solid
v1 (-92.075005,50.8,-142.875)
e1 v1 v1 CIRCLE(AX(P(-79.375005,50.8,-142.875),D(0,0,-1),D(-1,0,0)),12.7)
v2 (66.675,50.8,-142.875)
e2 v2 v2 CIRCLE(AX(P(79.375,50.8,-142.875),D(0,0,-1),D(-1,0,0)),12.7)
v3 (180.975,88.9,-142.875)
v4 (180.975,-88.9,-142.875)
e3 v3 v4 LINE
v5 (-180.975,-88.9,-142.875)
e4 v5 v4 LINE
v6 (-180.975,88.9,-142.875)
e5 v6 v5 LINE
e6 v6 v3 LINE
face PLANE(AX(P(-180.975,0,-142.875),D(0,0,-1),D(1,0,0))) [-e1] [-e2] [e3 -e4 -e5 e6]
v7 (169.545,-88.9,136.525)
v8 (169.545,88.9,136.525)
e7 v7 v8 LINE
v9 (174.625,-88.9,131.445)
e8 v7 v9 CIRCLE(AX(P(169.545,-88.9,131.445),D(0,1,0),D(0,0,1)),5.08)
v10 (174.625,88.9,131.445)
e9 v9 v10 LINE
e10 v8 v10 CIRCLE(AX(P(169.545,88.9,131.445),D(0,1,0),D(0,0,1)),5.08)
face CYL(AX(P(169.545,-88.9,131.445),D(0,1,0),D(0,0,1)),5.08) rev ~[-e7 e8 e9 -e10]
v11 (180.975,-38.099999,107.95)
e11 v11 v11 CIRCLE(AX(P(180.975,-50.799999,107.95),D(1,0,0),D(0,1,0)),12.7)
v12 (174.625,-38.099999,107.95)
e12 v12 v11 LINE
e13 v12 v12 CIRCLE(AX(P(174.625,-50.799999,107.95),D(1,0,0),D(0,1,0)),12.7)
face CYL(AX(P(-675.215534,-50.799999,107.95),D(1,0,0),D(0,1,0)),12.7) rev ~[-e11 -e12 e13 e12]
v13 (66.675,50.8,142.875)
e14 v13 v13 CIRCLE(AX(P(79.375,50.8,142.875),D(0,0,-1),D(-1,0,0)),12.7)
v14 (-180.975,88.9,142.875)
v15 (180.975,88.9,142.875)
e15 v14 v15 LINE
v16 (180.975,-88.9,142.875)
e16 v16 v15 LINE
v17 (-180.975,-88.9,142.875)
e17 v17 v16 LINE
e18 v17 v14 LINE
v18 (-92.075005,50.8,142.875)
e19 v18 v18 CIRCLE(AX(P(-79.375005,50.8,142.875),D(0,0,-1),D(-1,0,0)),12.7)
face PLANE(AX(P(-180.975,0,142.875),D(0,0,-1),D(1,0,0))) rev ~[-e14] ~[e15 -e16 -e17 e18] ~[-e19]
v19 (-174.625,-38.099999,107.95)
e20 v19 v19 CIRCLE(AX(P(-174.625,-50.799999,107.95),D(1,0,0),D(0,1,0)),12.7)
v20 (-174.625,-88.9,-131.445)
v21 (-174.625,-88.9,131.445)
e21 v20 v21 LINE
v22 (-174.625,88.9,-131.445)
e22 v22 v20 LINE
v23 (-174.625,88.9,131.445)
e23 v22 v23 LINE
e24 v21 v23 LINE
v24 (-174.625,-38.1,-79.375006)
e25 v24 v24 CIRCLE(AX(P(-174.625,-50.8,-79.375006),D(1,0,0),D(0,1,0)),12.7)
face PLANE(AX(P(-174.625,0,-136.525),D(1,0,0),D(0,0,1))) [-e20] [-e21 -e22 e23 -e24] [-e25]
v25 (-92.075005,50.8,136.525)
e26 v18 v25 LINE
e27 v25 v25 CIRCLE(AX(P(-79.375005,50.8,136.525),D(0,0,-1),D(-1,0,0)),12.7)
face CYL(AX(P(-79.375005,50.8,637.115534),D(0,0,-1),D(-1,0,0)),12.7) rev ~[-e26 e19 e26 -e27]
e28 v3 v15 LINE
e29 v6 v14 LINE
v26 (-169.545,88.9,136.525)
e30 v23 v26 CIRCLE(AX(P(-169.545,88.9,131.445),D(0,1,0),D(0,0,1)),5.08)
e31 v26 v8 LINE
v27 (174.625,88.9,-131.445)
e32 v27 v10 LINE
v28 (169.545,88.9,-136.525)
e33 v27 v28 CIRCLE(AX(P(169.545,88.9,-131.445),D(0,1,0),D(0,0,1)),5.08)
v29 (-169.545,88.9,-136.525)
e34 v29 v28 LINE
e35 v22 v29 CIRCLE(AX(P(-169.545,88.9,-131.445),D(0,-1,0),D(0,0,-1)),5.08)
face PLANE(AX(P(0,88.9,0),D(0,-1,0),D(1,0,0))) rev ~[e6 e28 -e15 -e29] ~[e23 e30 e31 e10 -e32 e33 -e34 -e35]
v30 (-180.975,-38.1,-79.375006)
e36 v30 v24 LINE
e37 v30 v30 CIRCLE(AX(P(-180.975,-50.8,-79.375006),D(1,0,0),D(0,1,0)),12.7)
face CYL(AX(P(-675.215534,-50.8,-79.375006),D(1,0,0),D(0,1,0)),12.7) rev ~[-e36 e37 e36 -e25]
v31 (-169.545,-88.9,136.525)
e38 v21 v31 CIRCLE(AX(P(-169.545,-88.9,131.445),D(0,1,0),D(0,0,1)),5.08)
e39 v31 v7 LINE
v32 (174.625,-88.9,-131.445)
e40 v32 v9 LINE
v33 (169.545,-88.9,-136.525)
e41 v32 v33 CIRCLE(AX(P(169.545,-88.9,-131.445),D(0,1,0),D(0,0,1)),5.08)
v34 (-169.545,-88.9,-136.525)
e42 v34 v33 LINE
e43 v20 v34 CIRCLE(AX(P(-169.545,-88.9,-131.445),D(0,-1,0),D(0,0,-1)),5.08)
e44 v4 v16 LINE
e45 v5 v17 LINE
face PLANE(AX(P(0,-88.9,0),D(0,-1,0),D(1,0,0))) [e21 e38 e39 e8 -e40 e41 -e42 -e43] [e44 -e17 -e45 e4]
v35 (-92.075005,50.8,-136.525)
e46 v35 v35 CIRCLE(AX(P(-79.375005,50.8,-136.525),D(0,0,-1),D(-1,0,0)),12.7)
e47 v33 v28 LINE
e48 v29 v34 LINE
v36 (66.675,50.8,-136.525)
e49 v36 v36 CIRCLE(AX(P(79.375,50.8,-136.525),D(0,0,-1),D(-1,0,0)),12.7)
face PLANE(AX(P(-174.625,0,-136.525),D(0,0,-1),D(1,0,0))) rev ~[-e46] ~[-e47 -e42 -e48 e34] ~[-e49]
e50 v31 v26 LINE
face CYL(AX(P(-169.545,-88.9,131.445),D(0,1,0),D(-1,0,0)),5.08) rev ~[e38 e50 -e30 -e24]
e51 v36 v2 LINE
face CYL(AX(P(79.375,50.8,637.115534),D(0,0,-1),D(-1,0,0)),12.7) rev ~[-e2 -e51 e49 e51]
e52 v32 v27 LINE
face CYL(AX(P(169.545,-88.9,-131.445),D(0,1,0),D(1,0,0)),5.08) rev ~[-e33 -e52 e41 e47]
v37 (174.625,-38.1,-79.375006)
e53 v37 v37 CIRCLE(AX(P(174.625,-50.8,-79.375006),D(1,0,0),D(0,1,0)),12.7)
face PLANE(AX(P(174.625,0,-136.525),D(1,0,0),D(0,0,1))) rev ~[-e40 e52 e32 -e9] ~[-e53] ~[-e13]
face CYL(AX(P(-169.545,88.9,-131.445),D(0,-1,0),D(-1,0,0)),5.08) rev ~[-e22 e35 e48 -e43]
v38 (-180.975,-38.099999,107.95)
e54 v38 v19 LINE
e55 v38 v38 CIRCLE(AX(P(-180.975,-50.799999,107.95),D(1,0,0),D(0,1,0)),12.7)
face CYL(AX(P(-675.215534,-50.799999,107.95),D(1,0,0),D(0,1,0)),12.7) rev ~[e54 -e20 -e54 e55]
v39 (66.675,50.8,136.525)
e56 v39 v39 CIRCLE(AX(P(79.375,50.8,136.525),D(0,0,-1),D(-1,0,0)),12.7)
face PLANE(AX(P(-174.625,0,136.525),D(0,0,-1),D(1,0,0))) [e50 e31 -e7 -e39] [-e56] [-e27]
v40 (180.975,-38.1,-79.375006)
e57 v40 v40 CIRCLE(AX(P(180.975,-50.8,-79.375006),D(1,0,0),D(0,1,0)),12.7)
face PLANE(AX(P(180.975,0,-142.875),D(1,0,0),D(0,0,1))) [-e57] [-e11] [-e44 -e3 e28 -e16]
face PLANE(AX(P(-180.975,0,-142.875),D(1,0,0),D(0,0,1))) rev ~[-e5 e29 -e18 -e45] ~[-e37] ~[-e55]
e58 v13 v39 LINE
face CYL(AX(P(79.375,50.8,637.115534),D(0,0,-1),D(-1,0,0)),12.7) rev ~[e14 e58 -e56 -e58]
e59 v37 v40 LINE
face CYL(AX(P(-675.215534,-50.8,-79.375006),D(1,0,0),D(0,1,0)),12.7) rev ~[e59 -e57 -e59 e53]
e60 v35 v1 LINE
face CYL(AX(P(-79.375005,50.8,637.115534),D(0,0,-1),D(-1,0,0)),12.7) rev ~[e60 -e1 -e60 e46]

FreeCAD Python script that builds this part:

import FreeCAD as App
import Part
import Sketcher
Q = App.Units.Quantity


def edges_at(feature, points):
    """Names of the edges that pass closest to the given points."""
    edges = feature.Shape.Edges
    near = lambda p: min(range(len(edges)), key=lambda i: edges[i].distToShape(Part.Vertex(*p))[0])
    return sorted({f"Edge{near(p) + 1}" for p in points})

doc = App.newDocument("Part")
body = doc.addObject("PartDesign::Body", "Body")

sketch1 = body.newObject("Sketcher::SketchObject", "Sketch")
sketch1.AttachmentSupport = (doc.getObject("XZ_Plane"), [""])
sketch1.MapMode = "FlatFace"
sketch1.addGeometry(Part.LineSegment(App.Vector(-181, 143, 0), App.Vector(-181, -143, 0)), False)
sketch1.addGeometry(Part.LineSegment(App.Vector(-181, -143, 0), App.Vector(181, -143, 0)), False)
sketch1.addGeometry(Part.LineSegment(App.Vector(181, -143, 0), App.Vector(181, 143, 0)), False)
sketch1.addGeometry(Part.LineSegment(App.Vector(181, 143, 0), App.Vector(-181, 143, 0)), False)
sketch1.addGeometry(Part.LineSegment(App.Vector(175, -137, 0), App.Vector(-175, -137, 0)), False)
sketch1.addGeometry(Part.LineSegment(App.Vector(-175, -137, 0), App.Vector(-175, 137, 0)), False)
sketch1.addGeometry(Part.LineSegment(App.Vector(-175, 137, 0), App.Vector(175, 137, 0)), False)
sketch1.addGeometry(Part.LineSegment(App.Vector(175, 137, 0), App.Vector(175, -137, 0)), False)
sketch1.addConstraint(Sketcher.Constraint("Coincident", 0, 2, 1, 1))
sketch1.addConstraint(Sketcher.Constraint("Coincident", 1, 2, 2, 1))
sketch1.addConstraint(Sketcher.Constraint("Coincident", 2, 2, 3, 1))
sketch1.addConstraint(Sketcher.Constraint("Coincident", 3, 2, 0, 1))
sketch1.addConstraint(Sketcher.Constraint("Coincident", 4, 2, 5, 1))
sketch1.addConstraint(Sketcher.Constraint("Coincident", 5, 2, 6, 1))
sketch1.addConstraint(Sketcher.Constraint("Coincident", 6, 2, 7, 1))
sketch1.addConstraint(Sketcher.Constraint("Coincident", 7, 2, 4, 1))
sketch1.addConstraint(Sketcher.Constraint("Vertical", 0))
sketch1.addConstraint(Sketcher.Constraint("Horizontal", 1))
sketch1.addConstraint(Sketcher.Constraint("Vertical", 2))
sketch1.addConstraint(Sketcher.Constraint("Horizontal", 3))
sketch1.addConstraint(Sketcher.Constraint("Horizontal", 4))
sketch1.addConstraint(Sketcher.Constraint("Vertical", 5))
sketch1.addConstraint(Sketcher.Constraint("Horizontal", 6))
sketch1.addConstraint(Sketcher.Constraint("Vertical", 7))
sketch1.addConstraint(Sketcher.Constraint("Symmetric", 0, 2, 2, 2, -1, 1))
sketch1.addConstraint(Sketcher.Constraint("Symmetric", 4, 2, 6, 2, -1, 1))
sketch1.addConstraint(Sketcher.Constraint("DistanceY", 4, 2, 3, 2, Q("11 in")))
sketch1.addConstraint(Sketcher.Constraint("DistanceX", 4, 2, 1, 2, Q("14 in")))
sketch1.addConstraint(Sketcher.Constraint("DistanceX", 1, 1, 1, 2, Q("14.25 in")))
sketch1.addConstraint(Sketcher.Constraint("DistanceY", 0, 2, 0, 1, Q("11.25 in")))
pad1 = body.newObject("PartDesign::Pad", "Pad")
pad1.Profile = sketch1
pad1.Length = Q("7 in")
pad1.Midplane = True
doc.recompute()

fillet = body.newObject("PartDesign::Fillet", "Fillet")
fillet.Base = (pad1, edges_at(pad1, [
    (-174.625, 0, -136.525),
    (174.625, 0, -136.525),
    (174.625, 0, 136.525),
    (-174.625, 0, 136.525),
]))
fillet.Radius = Q("0.2 in")

sketch2 = body.newObject("Sketcher::SketchObject", "Sketch001")
sketch2.AttachmentSupport = (doc.getObject("XY_Plane"), [""])
sketch2.MapMode = "FlatFace"
sketch2.AttachmentOffset = App.Placement(App.Vector(0, 0, 5.625 * 25.4), App.Rotation())
sketch2.addGeometry(Part.Circle(App.Vector(-79, 51, 0), App.Vector(0, 0, 1), 13), False)
sketch2.addGeometry(Part.Circle(App.Vector(79, 51, 0), App.Vector(0, 0, 1), 13), False)
sketch2.addConstraint(Sketcher.Constraint("Equal", 0, 1))
sketch2.addConstraint(Sketcher.Constraint("Symmetric", 0, 3, 1, 3, -2))
sketch2.addConstraint(Sketcher.Constraint("Diameter", 0, Q("1 in")))
sketch2.addConstraint(Sketcher.Constraint("DistanceY", -1, 1, 0, 3, Q("2 in")))
sketch2.addConstraint(Sketcher.Constraint("DistanceX", 0, 3, 1, 3, Q("6.2500002 in")))
doc.recompute()
hole = body.newObject("PartDesign::Hole", "Hole")
hole.Profile = sketch2
hole.ThreadType = "None"
hole.Diameter = Q("1 in")
hole.DepthType = "ThroughAll"

sketch3 = body.newObject("Sketcher::SketchObject", "Sketch002")
sketch3.AttachmentSupport = (doc.getObject("YZ_Plane"), [""])
sketch3.MapMode = "FlatFace"
sketch3.AttachmentOffset = App.Placement(App.Vector(0, 0, -7.125 * 25.4), App.Rotation())
sketch3.addGeometry(Part.Circle(App.Vector(-51, 108, 0), App.Vector(0, 0, 1), 13), False)
sketch3.addGeometry(Part.Circle(App.Vector(-51, -79, 0), App.Vector(0, 0, 1), 13), False)
sketch3.addConstraint(Sketcher.Constraint("Equal", 0, 1))
sketch3.addConstraint(Sketcher.Constraint("Vertical", 0, 3, 1, 3))
sketch3.addConstraint(Sketcher.Constraint("Diameter", 0, Q("1 in")))
sketch3.addConstraint(Sketcher.Constraint("DistanceX", 0, 3, -1, 1, Q("2 in")))
sketch3.addConstraint(Sketcher.Constraint("DistanceY", -1, 1, 0, 3, Q("4.25 in")))
sketch3.addConstraint(Sketcher.Constraint("DistanceY", 1, 3, -1, 1, Q("79.375006 mm")))
doc.recompute()
hole2 = body.newObject("PartDesign::Hole", "Hole001")
hole2.Profile = sketch3
hole2.ThreadType = "None"
hole2.Diameter = Q("1 in")
hole2.DepthType = "ThroughAll"
hole2.Reversed = True

doc.recompute()
